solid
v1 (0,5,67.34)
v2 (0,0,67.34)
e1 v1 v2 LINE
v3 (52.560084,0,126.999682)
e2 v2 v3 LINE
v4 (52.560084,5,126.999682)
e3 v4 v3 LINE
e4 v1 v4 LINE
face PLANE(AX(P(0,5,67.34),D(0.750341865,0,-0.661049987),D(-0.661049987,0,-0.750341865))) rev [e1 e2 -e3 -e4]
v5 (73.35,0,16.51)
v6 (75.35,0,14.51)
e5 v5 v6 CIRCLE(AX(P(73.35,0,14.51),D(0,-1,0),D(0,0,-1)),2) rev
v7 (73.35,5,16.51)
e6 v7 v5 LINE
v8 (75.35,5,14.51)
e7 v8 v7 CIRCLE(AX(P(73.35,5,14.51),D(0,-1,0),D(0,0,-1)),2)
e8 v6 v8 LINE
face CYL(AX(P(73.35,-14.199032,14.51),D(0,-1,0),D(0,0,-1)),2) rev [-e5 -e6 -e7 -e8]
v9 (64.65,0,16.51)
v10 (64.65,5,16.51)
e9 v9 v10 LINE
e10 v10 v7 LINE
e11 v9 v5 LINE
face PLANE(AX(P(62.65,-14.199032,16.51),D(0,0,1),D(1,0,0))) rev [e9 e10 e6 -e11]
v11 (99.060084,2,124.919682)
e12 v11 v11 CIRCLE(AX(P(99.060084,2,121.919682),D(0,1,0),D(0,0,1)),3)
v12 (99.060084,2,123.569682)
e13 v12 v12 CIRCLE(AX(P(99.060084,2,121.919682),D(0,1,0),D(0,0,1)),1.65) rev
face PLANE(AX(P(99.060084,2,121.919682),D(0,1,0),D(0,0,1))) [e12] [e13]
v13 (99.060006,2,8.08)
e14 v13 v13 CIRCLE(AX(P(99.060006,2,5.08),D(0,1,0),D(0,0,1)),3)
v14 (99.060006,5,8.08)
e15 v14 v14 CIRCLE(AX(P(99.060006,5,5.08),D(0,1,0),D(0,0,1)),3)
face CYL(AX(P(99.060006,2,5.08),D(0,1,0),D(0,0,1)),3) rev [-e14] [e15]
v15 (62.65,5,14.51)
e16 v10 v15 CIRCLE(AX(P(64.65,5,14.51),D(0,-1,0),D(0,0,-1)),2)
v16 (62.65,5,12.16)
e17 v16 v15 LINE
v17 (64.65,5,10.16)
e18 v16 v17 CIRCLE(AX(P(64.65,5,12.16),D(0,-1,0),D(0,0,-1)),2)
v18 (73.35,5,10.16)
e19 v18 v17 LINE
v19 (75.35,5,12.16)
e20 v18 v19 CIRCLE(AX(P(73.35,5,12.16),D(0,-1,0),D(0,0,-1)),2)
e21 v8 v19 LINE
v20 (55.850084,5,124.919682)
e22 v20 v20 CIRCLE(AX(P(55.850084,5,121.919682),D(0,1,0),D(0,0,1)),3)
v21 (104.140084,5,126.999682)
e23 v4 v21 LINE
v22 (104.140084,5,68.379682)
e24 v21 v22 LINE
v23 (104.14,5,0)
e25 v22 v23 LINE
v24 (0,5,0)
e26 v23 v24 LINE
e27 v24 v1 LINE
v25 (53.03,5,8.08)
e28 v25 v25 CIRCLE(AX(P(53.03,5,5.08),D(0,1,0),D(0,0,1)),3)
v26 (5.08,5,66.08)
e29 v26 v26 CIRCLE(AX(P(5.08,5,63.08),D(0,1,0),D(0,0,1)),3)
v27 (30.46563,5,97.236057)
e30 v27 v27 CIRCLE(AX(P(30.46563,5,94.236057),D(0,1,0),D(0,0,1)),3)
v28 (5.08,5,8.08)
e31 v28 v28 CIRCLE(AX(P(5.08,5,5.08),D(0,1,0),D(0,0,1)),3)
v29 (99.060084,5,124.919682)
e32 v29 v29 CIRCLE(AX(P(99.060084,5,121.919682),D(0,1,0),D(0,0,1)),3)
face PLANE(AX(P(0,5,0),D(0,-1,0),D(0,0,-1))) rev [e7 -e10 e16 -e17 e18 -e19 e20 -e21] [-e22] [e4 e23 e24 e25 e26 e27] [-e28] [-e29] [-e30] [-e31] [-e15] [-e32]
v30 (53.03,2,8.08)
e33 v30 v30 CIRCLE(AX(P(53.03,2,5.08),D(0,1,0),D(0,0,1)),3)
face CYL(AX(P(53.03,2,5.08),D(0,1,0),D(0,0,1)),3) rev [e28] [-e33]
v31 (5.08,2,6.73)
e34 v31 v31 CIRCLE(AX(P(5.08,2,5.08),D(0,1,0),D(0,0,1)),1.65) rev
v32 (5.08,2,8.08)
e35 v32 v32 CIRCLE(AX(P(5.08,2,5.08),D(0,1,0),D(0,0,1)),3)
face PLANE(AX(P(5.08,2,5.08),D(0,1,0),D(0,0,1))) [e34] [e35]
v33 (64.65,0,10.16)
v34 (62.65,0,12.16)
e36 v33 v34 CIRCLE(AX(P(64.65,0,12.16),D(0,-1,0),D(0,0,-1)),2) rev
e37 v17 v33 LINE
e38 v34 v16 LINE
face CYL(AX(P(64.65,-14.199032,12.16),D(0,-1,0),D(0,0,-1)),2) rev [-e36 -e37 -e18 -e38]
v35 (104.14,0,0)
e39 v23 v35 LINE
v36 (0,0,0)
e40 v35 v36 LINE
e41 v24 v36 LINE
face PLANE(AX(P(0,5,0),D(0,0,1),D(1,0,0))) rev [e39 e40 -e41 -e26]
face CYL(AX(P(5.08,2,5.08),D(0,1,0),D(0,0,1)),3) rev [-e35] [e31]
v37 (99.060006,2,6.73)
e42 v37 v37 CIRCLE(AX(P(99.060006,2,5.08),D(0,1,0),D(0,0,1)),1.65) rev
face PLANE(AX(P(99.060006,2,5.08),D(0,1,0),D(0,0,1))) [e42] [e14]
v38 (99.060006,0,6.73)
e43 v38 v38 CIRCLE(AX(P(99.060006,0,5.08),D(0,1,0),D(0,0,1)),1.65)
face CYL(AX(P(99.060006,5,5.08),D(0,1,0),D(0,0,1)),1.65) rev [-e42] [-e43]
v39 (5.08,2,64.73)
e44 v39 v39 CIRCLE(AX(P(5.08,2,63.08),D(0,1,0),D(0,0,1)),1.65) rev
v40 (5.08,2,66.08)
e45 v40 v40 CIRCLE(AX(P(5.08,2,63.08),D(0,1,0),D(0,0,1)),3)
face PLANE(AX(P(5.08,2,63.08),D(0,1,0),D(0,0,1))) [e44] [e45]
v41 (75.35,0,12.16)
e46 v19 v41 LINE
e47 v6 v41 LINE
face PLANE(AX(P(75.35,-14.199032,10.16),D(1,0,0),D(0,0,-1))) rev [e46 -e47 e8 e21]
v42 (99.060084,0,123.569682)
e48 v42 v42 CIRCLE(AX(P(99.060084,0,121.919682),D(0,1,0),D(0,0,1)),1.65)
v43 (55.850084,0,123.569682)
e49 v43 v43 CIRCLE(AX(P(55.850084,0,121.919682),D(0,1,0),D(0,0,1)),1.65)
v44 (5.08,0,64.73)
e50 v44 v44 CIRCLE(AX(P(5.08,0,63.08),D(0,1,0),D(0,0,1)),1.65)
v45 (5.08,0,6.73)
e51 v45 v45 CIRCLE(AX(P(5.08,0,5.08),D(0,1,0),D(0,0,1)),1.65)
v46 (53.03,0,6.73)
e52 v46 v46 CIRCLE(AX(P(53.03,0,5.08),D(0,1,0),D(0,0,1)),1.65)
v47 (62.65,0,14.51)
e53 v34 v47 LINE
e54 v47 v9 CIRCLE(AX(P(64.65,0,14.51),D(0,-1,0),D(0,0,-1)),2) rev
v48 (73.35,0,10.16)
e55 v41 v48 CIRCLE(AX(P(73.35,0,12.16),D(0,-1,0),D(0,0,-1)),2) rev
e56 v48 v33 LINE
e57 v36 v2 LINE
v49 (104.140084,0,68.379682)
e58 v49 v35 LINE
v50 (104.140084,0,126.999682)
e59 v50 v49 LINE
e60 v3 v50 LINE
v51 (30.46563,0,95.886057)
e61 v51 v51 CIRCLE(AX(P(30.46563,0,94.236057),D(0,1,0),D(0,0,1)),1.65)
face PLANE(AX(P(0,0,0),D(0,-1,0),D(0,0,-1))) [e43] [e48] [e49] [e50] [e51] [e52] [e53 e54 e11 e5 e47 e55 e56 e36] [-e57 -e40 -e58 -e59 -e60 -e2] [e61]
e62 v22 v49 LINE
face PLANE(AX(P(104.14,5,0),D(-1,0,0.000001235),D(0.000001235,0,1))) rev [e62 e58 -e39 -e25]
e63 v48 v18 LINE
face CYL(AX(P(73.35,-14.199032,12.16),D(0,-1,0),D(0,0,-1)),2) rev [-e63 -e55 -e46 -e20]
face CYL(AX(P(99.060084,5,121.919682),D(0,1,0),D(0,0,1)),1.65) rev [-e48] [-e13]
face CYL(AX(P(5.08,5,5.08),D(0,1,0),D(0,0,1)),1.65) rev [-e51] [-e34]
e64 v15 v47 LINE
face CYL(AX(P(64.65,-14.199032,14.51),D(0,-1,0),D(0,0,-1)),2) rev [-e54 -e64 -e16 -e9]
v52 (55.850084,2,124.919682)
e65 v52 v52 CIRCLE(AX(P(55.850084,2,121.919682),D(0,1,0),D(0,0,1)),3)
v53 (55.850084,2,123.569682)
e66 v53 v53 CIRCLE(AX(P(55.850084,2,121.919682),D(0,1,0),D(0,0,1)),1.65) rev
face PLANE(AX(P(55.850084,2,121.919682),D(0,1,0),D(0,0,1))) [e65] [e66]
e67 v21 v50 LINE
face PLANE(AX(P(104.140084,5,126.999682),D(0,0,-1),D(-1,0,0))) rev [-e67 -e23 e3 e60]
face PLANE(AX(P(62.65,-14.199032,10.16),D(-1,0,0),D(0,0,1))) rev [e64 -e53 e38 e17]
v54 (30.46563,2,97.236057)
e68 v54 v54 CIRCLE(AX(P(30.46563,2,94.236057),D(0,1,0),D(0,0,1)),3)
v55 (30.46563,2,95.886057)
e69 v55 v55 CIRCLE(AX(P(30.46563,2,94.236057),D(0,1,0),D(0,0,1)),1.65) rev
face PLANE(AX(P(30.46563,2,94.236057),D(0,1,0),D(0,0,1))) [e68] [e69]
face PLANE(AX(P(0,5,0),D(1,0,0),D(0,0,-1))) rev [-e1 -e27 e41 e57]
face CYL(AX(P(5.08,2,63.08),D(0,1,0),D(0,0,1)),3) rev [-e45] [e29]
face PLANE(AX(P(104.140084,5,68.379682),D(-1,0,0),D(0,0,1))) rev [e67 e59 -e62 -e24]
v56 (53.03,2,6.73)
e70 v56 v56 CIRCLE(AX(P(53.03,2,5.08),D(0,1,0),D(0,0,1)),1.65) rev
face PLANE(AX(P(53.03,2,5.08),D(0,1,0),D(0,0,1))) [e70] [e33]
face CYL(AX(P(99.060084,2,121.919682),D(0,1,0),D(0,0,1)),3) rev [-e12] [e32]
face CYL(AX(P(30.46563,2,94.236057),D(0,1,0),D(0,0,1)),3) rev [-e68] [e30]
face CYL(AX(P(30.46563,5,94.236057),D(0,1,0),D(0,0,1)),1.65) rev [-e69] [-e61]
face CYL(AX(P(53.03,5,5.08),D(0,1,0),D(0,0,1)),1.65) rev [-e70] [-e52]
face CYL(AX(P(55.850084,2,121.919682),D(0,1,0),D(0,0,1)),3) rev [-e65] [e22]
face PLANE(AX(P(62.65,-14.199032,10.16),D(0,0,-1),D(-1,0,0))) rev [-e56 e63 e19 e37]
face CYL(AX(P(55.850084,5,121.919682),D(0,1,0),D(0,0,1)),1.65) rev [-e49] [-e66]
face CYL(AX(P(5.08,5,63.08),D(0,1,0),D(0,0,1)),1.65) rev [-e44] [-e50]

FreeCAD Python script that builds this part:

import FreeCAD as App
import Part
import Sketcher
Q = App.Units.Quantity


def edges_at(feature, points):
    """Names of the edges that pass closest to the given points."""
    edges = feature.Shape.Edges
    near = lambda p: min(range(len(edges)), key=lambda i: edges[i].distToShape(Part.Vertex(*p))[0])
    return sorted({f"Edge{near(p) + 1}" for p in points})

doc = App.newDocument("Part")
params = doc.addObject("Spreadsheet::Sheet", "Params")
for row, (alias, value) in enumerate([
    ("sketch1_width", "104.14 mm"),
    ("sketch1_width2", "51.58 mm"),
    ("sketch1_height", "67.34 mm"),
    ("sketch1_height2", "58.62 mm"),
    ("sketch1_length", "79.51 mm"),
    ("pad1_length", "5 mm"),
    ("sketch2_diameter", "3.3 mm"),
    ("hole_diameter", "3.3 mm"),
    ("sketch3_width", "12.7 mm"),
    ("sketch3_height", "6.35 mm"),
    ("pocket1_length", "5 mm"),
    ("fillet_radius", "2 mm"),
    ("sketch4_diameter", "6 mm"),
    ("pocket2_length", "3 mm"),
], start=1):
    params.set(f"A{row}", alias)
    params.set(f"B{row}", "=" + value)
    params.setAlias(f"B{row}", alias)

body = doc.addObject("PartDesign::Body", "Body")

# Sketch on XZ plane
sketch1 = body.newObject("Sketcher::SketchObject", "Sketch")
sketch1.AttachmentSupport = (doc.getObject("XZ_Plane"), [""])
sketch1.MapMode = "FlatFace"
sketch1.addGeometry(Part.LineSegment(App.Vector(104, 0, 0), App.Vector(0, 0, 0)), False)
sketch1.addGeometry(Part.LineSegment(App.Vector(0, 0, 0), App.Vector(0, 67, 0)), False)
sketch1.addGeometry(Part.LineSegment(App.Vector(0, 67, 0), App.Vector(53, 127, 0)), False)
sketch1.addGeometry(Part.LineSegment(App.Vector(53, 127, 0), App.Vector(104, 127, 0)), False)
sketch1.addGeometry(Part.LineSegment(App.Vector(104, 127, 0), App.Vector(104, 68, 0)), False)
sketch1.addGeometry(Part.LineSegment(App.Vector(104, 68, 0), App.Vector(104, 0, 0)), False)
sketch1.addConstraint(Sketcher.Constraint("Coincident", 0, 2, 1, 1))
sketch1.addConstraint(Sketcher.Constraint("Coincident", 1, 2, 2, 1))
sketch1.addConstraint(Sketcher.Constraint("Coincident", 2, 2, 3, 1))
sketch1.addConstraint(Sketcher.Constraint("Coincident", 3, 2, 4, 1))
sketch1.addConstraint(Sketcher.Constraint("Coincident", 4, 2, 5, 1))
sketch1.addConstraint(Sketcher.Constraint("Coincident", 5, 2, 0, 1))
sketch1.addConstraint(Sketcher.Constraint("Horizontal", 0))
sketch1.addConstraint(Sketcher.Constraint("Vertical", 1))
sketch1.addConstraint(Sketcher.Constraint("Horizontal", 3))
sketch1.addConstraint(Sketcher.Constraint("Vertical", 4))
sketch1.addConstraint(Sketcher.Constraint("Coincident", 0, 2, -1, 1))
sketch1.addConstraint(Sketcher.Constraint("DistanceX", 0, 2, 0, 1, 104.14))
sketch1.addConstraint(Sketcher.Constraint("DistanceX", 3, 1, 3, 2, 51.58))
sketch1.addConstraint(Sketcher.Constraint("DistanceY", 1, 1, 1, 2, 67.34))
sketch1.addConstraint(Sketcher.Constraint("DistanceY", 4, 2, 4, 1, 58.62))
sketch1.addConstraint(Sketcher.Constraint("Angle", 2, Q("48.62 deg")))
sketch1.addConstraint(Sketcher.Constraint("Distance", 2, 79.51))
sketch1.setExpression("Constraints[11]", "Params.sketch1_width")
sketch1.setExpression("Constraints[12]", "Params.sketch1_width2")
sketch1.setExpression("Constraints[13]", "Params.sketch1_height")
sketch1.setExpression("Constraints[14]", "Params.sketch1_height2")
sketch1.setExpression("Constraints[16]", "Params.sketch1_length")
pad1 = body.newObject("PartDesign::Pad", "Pad")
pad1.Profile = sketch1
pad1.setExpression("Length", "Params.pad1_length")
pad1.Reversed = True

# Sketch on XZ plane
sketch2 = body.newObject("Sketcher::SketchObject", "Sketch001")
sketch2.AttachmentSupport = (doc.getObject("XZ_Plane"), [""])
sketch2.MapMode = "FlatFace"
sketch2.AttachmentOffset = App.Placement(App.Vector(0, 0, -5), App.Rotation())
sketch2.addGeometry(Part.Circle(App.Vector(5.1, 5.1, 0), App.Vector(0, 0, 1), 1.6), False)
sketch2.addGeometry(Part.Circle(App.Vector(53, 5.1, 0), App.Vector(0, 0, 1), 1.6), False)
sketch2.addGeometry(Part.Circle(App.Vector(99.1, 5.1, 0), App.Vector(0, 0, 1), 1.6), False)
sketch2.addGeometry(Part.Circle(App.Vector(99.1, 121.9, 0), App.Vector(0, 0, 1), 1.6), False)
sketch2.addGeometry(Part.Circle(App.Vector(55.9, 121.9, 0), App.Vector(0, 0, 1), 1.6), False)
sketch2.addGeometry(Part.Circle(App.Vector(30.5, 94.2, 0), App.Vector(0, 0, 1), 1.6), False)
sketch2.addGeometry(Part.Circle(App.Vector(5.1, 63.1, 0), App.Vector(0, 0, 1), 1.6), False)
sketch2.addConstraint(Sketcher.Constraint("Equal", 0, 1))
sketch2.addConstraint(Sketcher.Constraint("Equal", 1, 2))
sketch2.addConstraint(Sketcher.Constraint("Equal", 2, 3))
sketch2.addConstraint(Sketcher.Constraint("Equal", 3, 4))
sketch2.addConstraint(Sketcher.Constraint("Equal", 4, 5))
sketch2.addConstraint(Sketcher.Constraint("Equal", 5, 6))
sketch2.addConstraint(Sketcher.Constraint("Horizontal", 0, 3, 1, 3))
sketch2.addConstraint(Sketcher.Constraint("Horizontal", 1, 3, 2, 3))
sketch2.addConstraint(Sketcher.Constraint("Horizontal", 3, 3, 4, 3))
sketch2.addConstraint(Sketcher.Constraint("Vertical", 0, 3, 6, 3))
sketch2.addConstraint(Sketcher.Constraint("Diameter", 0, 3.3))
sketch2.addConstraint(Sketcher.Constraint("DistanceY", 0, 3, 6, 3, 58.0))
sketch2.addConstraint(Sketcher.Constraint("DistanceX", -1, 1, 0, 3, 5.08))
sketch2.addConstraint(Sketcher.Constraint("DistanceY", -1, 1, 0, 3, 5.08))
sketch2.addConstraint(Sketcher.Constraint("DistanceX", -1, 1, 1, 3, 53.03))
sketch2.addConstraint(Sketcher.Constraint("DistanceX", 4, 3, 3, 3, 43.21))
sketch2.addConstraint(Sketcher.Constraint("DistanceY", -1, 1, 3, 3, 121.919682))
sketch2.addConstraint(Sketcher.Constraint("DistanceX", -1, 1, 5, 3, 30.46563))
sketch2.addConstraint(Sketcher.Constraint("DistanceX", 4, 3, 2, 3, 43.209922))
sketch2.addConstraint(Sketcher.Constraint("DistanceX", -1, 1, 2, 3, 99.060006))
sketch2.addConstraint(Sketcher.Constraint("DistanceY", -1, 1, 5, 3, 94.236057))
sketch2.setExpression("Constraints[10]", "Params.sketch2_diameter")
doc.recompute()
hole = body.newObject("PartDesign::Hole", "Hole")
hole.Profile = sketch2
hole.ThreadType = "None"
hole.setExpression("Diameter", "Params.hole_diameter")
hole.DepthType = "ThroughAll"
hole.Reversed = True

# Sketch on XZ plane
sketch3 = body.newObject("Sketcher::SketchObject", "Sketch002")
sketch3.AttachmentSupport = (doc.getObject("XZ_Plane"), [""])
sketch3.MapMode = "FlatFace"
sketch3.AttachmentOffset = App.Placement(App.Vector(0, 0, -5), App.Rotation())
sketch3.addGeometry(Part.LineSegment(App.Vector(63, 10, 0), App.Vector(63, 17, 0)), False)
sketch3.addGeometry(Part.LineSegment(App.Vector(63, 17, 0), App.Vector(75, 17, 0)), False)
sketch3.addGeometry(Part.LineSegment(App.Vector(75, 17, 0), App.Vector(75, 10, 0)), False)
sketch3.addGeometry(Part.LineSegment(App.Vector(75, 10, 0), App.Vector(63, 10, 0)), False)
sketch3.addConstraint(Sketcher.Constraint("Coincident", 0, 2, 1, 1))
sketch3.addConstraint(Sketcher.Constraint("Coincident", 1, 2, 2, 1))
sketch3.addConstraint(Sketcher.Constraint("Coincident", 2, 2, 3, 1))
sketch3.addConstraint(Sketcher.Constraint("Coincident", 3, 2, 0, 1))
sketch3.addConstraint(Sketcher.Constraint("Vertical", 0))
sketch3.addConstraint(Sketcher.Constraint("Horizontal", 1))
sketch3.addConstraint(Sketcher.Constraint("Vertical", 2))
sketch3.addConstraint(Sketcher.Constraint("Horizontal", 3))
sketch3.addConstraint(Sketcher.Constraint("DistanceX", 1, 1, 1, 2, 12.7))
sketch3.addConstraint(Sketcher.Constraint("DistanceY", 0, 1, 0, 2, 6.35))
sketch3.addConstraint(Sketcher.Constraint("DistanceX", -1, 1, 0, 2, 62.65))
sketch3.addConstraint(Sketcher.Constraint("DistanceY", -1, 1, 0, 2, 16.51))
sketch3.setExpression("Constraints[8]", "Params.sketch3_width")
sketch3.setExpression("Constraints[9]", "Params.sketch3_height")
pocket1 = body.newObject("PartDesign::Pocket", "Pocket")
pocket1.Profile = sketch3
pocket1.setExpression("Length", "Params.pocket1_length")
pocket1.Reversed = True
doc.recompute()

fillet = body.newObject("PartDesign::Fillet", "Fillet")
fillet.Base = (pocket1, edges_at(pocket1, [
    (62.65, 2.5, 10.16),
    (62.65, 2.5, 16.51),
    (75.35, 2.5, 16.51),
    (75.35, 2.5, 10.16),
]))
fillet.setExpression("Radius", "Params.fillet_radius")

# Sketch on XZ plane
sketch4 = body.newObject("Sketcher::SketchObject", "Sketch003")
sketch4.AttachmentSupport = (doc.getObject("XZ_Plane"), [""])
sketch4.MapMode = "FlatFace"
sketch4.AttachmentOffset = App.Placement(App.Vector(0, 0, -5), App.Rotation())
sketch4.addGeometry(Part.Circle(App.Vector(55.9, 121.9, 0), App.Vector(0, 0, 1), 3), False)
sketch4.addGeometry(Part.Circle(App.Vector(99.1, 121.9, 0), App.Vector(0, 0, 1), 3), False)
sketch4.addGeometry(Part.Circle(App.Vector(30.5, 94.2, 0), App.Vector(0, 0, 1), 3), False)
sketch4.addGeometry(Part.Circle(App.Vector(5.1, 63.1, 0), App.Vector(0, 0, 1), 3), False)
sketch4.addGeometry(Part.Circle(App.Vector(5.1, 5.1, 0), App.Vector(0, 0, 1), 3), False)
sketch4.addGeometry(Part.Circle(App.Vector(53, 5.1, 0), App.Vector(0, 0, 1), 3), False)
sketch4.addGeometry(Part.Circle(App.Vector(99.1, 5.1, 0), App.Vector(0, 0, 1), 3), False)
sketch4.addConstraint(Sketcher.Constraint("Equal", 0, 1))
sketch4.addConstraint(Sketcher.Constraint("Equal", 1, 2))
sketch4.addConstraint(Sketcher.Constraint("Equal", 2, 3))
sketch4.addConstraint(Sketcher.Constraint("Equal", 3, 4))
sketch4.addConstraint(Sketcher.Constraint("Equal", 4, 5))
sketch4.addConstraint(Sketcher.Constraint("Equal", 5, 6))
sketch4.addConstraint(Sketcher.Constraint("Horizontal", 0, 3, 1, 3))
sketch4.addConstraint(Sketcher.Constraint("Horizontal", 4, 3, 5, 3))
sketch4.addConstraint(Sketcher.Constraint("Horizontal", 5, 3, 6, 3))
sketch4.addConstraint(Sketcher.Constraint("Vertical", 3, 3, 4, 3))
sketch4.addConstraint(Sketcher.Constraint("Diameter", 0, 6.0))
sketch4.addConstraint(Sketcher.Constraint("DistanceY", 4, 3, 3, 3, 58.0))
sketch4.addConstraint(Sketcher.Constraint("DistanceX", -1, 1, 3, 3, 5.08))
sketch4.addConstraint(Sketcher.Constraint("DistanceY", -1, 1, 3, 3, 63.08))
sketch4.addConstraint(Sketcher.Constraint("DistanceX", -1, 1, 5, 3, 53.03))
sketch4.addConstraint(Sketcher.Constraint("DistanceX", 0, 3, 1, 3, 43.21))
sketch4.addConstraint(Sketcher.Constraint("DistanceY", -1, 1, 0, 3, 121.919682))
sketch4.addConstraint(Sketcher.Constraint("DistanceX", -1, 1, 2, 3, 30.46563))
sketch4.addConstraint(Sketcher.Constraint("DistanceX", -1, 1, 0, 3, 55.850084))
sketch4.addConstraint(Sketcher.Constraint("DistanceY", -1, 1, 2, 3, 94.236057))
sketch4.addConstraint(Sketcher.Constraint("DistanceX", -1, 1, 6, 3, 99.060006))
sketch4.setExpression("Constraints[10]", "Params.sketch4_diameter")
pocket2 = body.newObject("PartDesign::Pocket", "Pocket001")
pocket2.Profile = sketch4
pocket2.setExpression("Length", "Params.pocket2_length")
pocket2.Reversed = True

doc.recompute()
